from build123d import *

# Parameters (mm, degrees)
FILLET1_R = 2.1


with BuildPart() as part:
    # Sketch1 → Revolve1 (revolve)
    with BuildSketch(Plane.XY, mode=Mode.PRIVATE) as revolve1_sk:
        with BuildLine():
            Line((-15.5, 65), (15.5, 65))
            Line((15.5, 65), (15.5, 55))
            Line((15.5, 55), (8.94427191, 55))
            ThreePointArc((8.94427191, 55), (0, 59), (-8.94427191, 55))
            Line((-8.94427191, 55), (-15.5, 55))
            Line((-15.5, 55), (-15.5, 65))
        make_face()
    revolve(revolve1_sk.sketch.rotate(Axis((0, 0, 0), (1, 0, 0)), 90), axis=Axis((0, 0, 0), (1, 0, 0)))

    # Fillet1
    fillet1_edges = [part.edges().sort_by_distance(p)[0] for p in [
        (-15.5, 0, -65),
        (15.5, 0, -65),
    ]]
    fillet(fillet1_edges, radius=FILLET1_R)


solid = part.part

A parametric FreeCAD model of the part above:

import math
import FreeCAD as App
import Part
import Sketcher
Q = App.Units.Quantity


def edges_at(feature, points):
    """Names of the edges that pass closest to the given points."""
    edges = feature.Shape.Edges
    near = lambda p: min(range(len(edges)), key=lambda i: edges[i].distToShape(Part.Vertex(*p))[0])
    return sorted({f"Edge{near(p) + 1}" for p in points})

doc = App.newDocument("Part")
body = doc.addObject("PartDesign::Body", "Body")

# Sketch on XY plane
sketch1 = doc.addObject("Sketcher::SketchObject", "Sketch")
body.addObject(sketch1)
sketch1.AttachmentSupport = (doc.XY_Plane, [""])
sketch1.MapMode = "FlatFace"
sketch1.addGeometry(Part.LineSegment(App.Vector(16, 65, 0), App.Vector(-16, 65, 0)), False)
sketch1.addGeometry(Part.LineSegment(App.Vector(-16, 65, 0), App.Vector(-16, 55, 0)), False)
sketch1.addGeometry(Part.LineSegment(App.Vector(-16, 55, 0), App.Vector(-9, 55, 0)), False)
sketch1.addGeometry(Part.ArcOfCircle(Part.Circle(App.Vector(0, 47, 0), App.Vector(0, 0, 1), 12), math.radians(42), math.radians(138)), False)
sketch1.addGeometry(Part.LineSegment(App.Vector(9, 55, 0), App.Vector(16, 55, 0)), False)
sketch1.addGeometry(Part.LineSegment(App.Vector(16, 55, 0), App.Vector(16, 65, 0)), False)
sketch1.addConstraint(Sketcher.Constraint("Coincident", 0, 2, 1, 1))
sketch1.addConstraint(Sketcher.Constraint("Coincident", 1, 2, 2, 1))
sketch1.addConstraint(Sketcher.Constraint("Coincident", 2, 2, 3, 2))
sketch1.addConstraint(Sketcher.Constraint("Coincident", 3, 1, 4, 1))
sketch1.addConstraint(Sketcher.Constraint("Coincident", 4, 2, 5, 1))
sketch1.addConstraint(Sketcher.Constraint("Coincident", 5, 2, 0, 1))
sketch1.addConstraint(Sketcher.Constraint("Horizontal", 0))
sketch1.addConstraint(Sketcher.Constraint("Vertical", 1))
sketch1.addConstraint(Sketcher.Constraint("Horizontal", 2))
sketch1.addConstraint(Sketcher.Constraint("Horizontal", 4))
sketch1.addConstraint(Sketcher.Constraint("Vertical", 5))
sketch1.addConstraint(Sketcher.Constraint("Symmetric", 2, 2, 3, 1, -2))
sketch1.addConstraint(Sketcher.Constraint("Equal", 2, 4))
sketch1.addConstraint(Sketcher.Constraint("Radius", 3, Q("12 mm")))
sketch1.addConstraint(Sketcher.Constraint("DistanceX", 0, 2, 0, 1, Q("31 mm")))
sketch1.addConstraint(Sketcher.Constraint("DistanceY", 1, 2, 1, 1, Q("10 mm")))
sketch1.addConstraint(Sketcher.Constraint("DistanceY", -1, 1, 3, 3, Q("47 mm")))
sketch1.addConstraint(Sketcher.Constraint("DistanceY", -1, 1, 0, 2, Q("65 mm")))
revolution = doc.addObject("PartDesign::Revolution", "Revolution")
body.addObject(revolution)
revolution.Profile = sketch1
revolution.ReferenceAxis = (sketch1, ["H_Axis"])
revolution.Angle = 360
doc.recompute()

fillet = doc.addObject("PartDesign::Fillet", "Fillet")
body.addObject(fillet)
fillet.Base = (revolution, edges_at(revolution, [(-15.5, 0, -65), (15.5, 0, -65)]))
fillet.Radius = 2.1

doc.recompute()
